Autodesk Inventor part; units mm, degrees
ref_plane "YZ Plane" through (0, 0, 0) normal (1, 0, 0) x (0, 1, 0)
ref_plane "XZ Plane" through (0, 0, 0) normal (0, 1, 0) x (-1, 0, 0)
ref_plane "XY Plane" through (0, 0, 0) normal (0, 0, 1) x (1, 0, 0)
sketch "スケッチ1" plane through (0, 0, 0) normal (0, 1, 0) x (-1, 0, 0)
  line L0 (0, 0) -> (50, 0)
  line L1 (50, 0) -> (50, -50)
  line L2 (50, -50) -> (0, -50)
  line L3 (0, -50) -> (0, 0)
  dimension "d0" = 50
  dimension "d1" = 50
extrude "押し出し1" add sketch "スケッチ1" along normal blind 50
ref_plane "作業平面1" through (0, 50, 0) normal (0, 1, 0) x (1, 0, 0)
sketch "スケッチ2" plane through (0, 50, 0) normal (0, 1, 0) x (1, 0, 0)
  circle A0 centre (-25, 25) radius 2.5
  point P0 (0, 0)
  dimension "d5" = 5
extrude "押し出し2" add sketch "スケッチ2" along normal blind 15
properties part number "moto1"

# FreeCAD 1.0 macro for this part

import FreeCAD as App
import Part
import Sketcher
from FreeCAD import Vector


def add_polygon(sketch, points):
    """Adds a closed chain of lines whose ends are joined by coincident constraints."""
    first, n = sketch.GeometryCount, len(points)
    for a, b in zip(points, points[1:] + points[:1]):
        sketch.addGeometry(Part.LineSegment(App.Vector(*a, 0), App.Vector(*b, 0)), False)
    for i in range(n):
        sketch.addConstraint(Sketcher.Constraint("Coincident", first + i, 2, first + (i + 1) % n, 1))

doc = App.newDocument("Part")
body = doc.addObject("PartDesign::Body", "Body")

# Sketch on XZ plane
sketch1 = body.newObject("Sketcher::SketchObject", "Sketch")
sketch1.AttachmentSupport = (doc.getObject("XZ_Plane"), [""])
sketch1.MapMode = "FlatFace"
add_polygon(sketch1, [(-50, 0), (0, 0), (0, -50), (-50, -50)])  # lines 0-3
sketch1.addConstraint(Sketcher.Constraint("Horizontal", 0))
sketch1.addConstraint(Sketcher.Constraint("Vertical", 1))
sketch1.addConstraint(Sketcher.Constraint("Horizontal", 2))
sketch1.addConstraint(Sketcher.Constraint("Vertical", 3))
sketch1.addConstraint(Sketcher.Constraint("Coincident", 0, 2, -1, 1))
sketch1.addConstraint(Sketcher.Constraint("Equal", 2, 1))
sketch1.addConstraint(Sketcher.Constraint("DistanceX", 0, 1, 0, 2, 50.0))
pad1 = body.newObject("PartDesign::Pad", "Pad")
pad1.Profile = sketch1
pad1.Length = 50
pad1.Reversed = True

# Sketch on XZ plane
sketch2 = body.newObject("Sketcher::SketchObject", "Sketch001")
sketch2.AttachmentSupport = (doc.getObject("XZ_Plane"), [""])
sketch2.MapMode = "FlatFace"
sketch2.AttachmentOffset = App.Placement(Vector(0, 0, -50), App.Rotation())
sketch2.addGeometry(Part.Circle(Vector(-25, -25, 0), Vector(0, 0, 1), 2.5), False)
sketch2.addConstraint(Sketcher.Constraint("Diameter", 0, 5.0))
sketch2.addConstraint(Sketcher.Constraint("DistanceX", 0, 3, -1, 1, 25.0))
sketch2.addConstraint(Sketcher.Constraint("DistanceY", 0, 3, -1, 1, 25.0))
pad2 = body.newObject("PartDesign::Pad", "Pad001")
pad2.Profile = sketch2
pad2.Length = 15
pad2.Reversed = True

doc.recompute()
